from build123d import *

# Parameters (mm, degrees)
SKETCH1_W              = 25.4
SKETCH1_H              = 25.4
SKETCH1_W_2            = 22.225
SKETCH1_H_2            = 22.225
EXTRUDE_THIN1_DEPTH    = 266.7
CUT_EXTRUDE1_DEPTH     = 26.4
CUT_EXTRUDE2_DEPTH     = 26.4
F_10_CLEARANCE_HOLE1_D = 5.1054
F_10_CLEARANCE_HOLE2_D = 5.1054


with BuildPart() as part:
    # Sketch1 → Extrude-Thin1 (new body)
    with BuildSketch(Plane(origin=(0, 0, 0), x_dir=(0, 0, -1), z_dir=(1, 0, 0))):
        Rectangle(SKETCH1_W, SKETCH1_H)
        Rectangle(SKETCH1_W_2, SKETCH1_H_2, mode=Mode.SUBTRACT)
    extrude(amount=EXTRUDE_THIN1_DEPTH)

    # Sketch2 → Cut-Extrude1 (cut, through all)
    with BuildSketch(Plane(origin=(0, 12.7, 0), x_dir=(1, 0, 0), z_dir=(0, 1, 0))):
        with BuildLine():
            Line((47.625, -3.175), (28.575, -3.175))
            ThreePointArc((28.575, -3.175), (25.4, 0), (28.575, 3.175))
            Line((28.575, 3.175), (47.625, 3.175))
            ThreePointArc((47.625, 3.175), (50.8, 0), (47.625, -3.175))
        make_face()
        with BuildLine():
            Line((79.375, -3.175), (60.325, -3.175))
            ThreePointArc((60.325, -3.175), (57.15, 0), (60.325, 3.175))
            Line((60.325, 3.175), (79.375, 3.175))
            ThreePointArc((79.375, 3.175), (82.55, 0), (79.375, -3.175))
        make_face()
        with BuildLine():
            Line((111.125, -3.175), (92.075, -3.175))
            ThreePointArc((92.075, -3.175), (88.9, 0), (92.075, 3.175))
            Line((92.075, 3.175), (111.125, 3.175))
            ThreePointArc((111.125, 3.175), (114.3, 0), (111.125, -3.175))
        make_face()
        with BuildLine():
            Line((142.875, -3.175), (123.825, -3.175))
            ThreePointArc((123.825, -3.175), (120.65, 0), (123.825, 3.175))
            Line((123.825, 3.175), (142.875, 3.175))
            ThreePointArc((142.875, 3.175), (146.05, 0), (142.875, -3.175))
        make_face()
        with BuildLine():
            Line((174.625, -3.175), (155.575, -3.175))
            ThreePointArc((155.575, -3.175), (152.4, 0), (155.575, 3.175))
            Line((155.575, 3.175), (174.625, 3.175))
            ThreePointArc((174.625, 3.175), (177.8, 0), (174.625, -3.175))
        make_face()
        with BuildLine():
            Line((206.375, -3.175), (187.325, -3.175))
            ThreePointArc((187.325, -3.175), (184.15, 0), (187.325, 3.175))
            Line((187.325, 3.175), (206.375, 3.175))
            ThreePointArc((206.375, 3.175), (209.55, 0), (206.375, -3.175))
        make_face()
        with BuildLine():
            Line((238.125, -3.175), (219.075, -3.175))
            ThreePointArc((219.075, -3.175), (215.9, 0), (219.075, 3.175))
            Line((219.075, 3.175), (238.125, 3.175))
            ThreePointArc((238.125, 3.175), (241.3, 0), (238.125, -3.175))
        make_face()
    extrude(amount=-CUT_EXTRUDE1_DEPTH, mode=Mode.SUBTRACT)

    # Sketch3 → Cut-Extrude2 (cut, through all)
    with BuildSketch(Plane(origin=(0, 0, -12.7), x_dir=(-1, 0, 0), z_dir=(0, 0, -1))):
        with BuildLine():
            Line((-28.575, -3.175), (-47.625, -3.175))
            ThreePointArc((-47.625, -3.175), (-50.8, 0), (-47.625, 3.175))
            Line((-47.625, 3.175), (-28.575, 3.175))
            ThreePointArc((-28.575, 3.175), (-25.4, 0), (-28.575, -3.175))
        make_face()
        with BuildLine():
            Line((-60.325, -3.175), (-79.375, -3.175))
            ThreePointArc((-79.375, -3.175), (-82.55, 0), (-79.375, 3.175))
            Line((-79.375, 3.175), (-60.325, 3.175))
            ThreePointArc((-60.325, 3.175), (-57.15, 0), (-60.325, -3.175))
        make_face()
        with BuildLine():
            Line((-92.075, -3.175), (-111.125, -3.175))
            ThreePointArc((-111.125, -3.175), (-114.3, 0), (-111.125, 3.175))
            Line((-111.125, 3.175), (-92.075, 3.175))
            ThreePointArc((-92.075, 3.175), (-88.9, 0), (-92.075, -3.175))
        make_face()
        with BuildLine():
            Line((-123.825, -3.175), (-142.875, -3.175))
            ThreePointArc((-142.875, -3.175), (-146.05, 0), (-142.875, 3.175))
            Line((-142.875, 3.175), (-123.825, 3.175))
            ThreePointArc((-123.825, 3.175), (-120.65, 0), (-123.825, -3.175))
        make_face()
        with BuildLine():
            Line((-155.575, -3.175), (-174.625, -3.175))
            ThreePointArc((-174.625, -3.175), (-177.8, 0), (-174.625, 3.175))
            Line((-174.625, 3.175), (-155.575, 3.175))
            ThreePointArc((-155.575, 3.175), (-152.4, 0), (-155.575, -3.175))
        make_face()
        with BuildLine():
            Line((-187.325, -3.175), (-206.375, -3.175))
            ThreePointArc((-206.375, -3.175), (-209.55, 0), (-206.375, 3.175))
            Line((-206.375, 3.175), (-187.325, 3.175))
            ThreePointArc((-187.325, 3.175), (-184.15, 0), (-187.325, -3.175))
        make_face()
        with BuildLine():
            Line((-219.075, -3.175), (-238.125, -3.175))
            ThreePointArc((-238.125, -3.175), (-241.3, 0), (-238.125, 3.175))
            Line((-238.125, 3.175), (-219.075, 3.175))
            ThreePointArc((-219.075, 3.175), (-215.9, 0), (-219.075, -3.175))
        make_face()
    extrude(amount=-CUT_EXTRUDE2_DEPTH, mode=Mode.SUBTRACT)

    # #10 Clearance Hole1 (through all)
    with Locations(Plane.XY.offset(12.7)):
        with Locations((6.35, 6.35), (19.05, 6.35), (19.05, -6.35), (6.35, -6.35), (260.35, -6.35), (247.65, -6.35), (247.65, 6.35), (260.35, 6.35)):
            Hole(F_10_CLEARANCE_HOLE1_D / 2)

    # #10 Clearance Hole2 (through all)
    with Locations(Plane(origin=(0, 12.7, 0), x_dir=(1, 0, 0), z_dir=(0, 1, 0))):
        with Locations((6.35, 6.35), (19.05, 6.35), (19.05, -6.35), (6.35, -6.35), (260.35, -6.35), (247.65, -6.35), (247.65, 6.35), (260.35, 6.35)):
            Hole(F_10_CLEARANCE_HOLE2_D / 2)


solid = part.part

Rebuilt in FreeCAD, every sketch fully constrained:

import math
import FreeCAD as App
import Part
import Sketcher
from FreeCAD import Vector
Q = App.Units.Quantity

doc = App.newDocument("Part")
body = doc.addObject("PartDesign::Body", "Body")

sketch1 = body.newObject("Sketcher::SketchObject", "Sketch")
sketch1.AttachmentSupport = (doc.getObject("YZ_Plane"), [""])
sketch1.MapMode = "FlatFace"
sketch1.addGeometry([
    Part.LineSegment(Vector(12.7, 12.7, 0), Vector(-12.7, 12.7, 0)),
    Part.LineSegment(Vector(-12.7, 12.7, 0), Vector(-12.7, -12.7, 0)),
    Part.LineSegment(Vector(-12.7, -12.7, 0), Vector(12.7, -12.7, 0)),
    Part.LineSegment(Vector(12.7, -12.7, 0), Vector(12.7, 12.7, 0)),
    Part.LineSegment(Vector(-11.1125, -11.1125, 0), Vector(-11.1125, 11.1125, 0)),
    Part.LineSegment(Vector(-11.1125, 11.1125, 0), Vector(11.1125, 11.1125, 0)),
    Part.LineSegment(Vector(11.1125, 11.1125, 0), Vector(11.1125, -11.1125, 0)),
    Part.LineSegment(Vector(11.1125, -11.1125, 0), Vector(-11.1125, -11.1125, 0)),
], False)
sketch1.addConstraint([
    Sketcher.Constraint("Coincident", 0, 2, 1, 1),
    Sketcher.Constraint("Coincident", 1, 2, 2, 1),
    Sketcher.Constraint("Coincident", 2, 2, 3, 1),
    Sketcher.Constraint("Coincident", 3, 2, 0, 1),
    Sketcher.Constraint("Coincident", 4, 2, 5, 1),
    Sketcher.Constraint("Coincident", 5, 2, 6, 1),
    Sketcher.Constraint("Coincident", 6, 2, 7, 1),
    Sketcher.Constraint("Coincident", 7, 2, 4, 1),
    Sketcher.Constraint("Horizontal", 0),
    Sketcher.Constraint("Vertical", 1),
    Sketcher.Constraint("Horizontal", 2),
    Sketcher.Constraint("Vertical", 3),
    Sketcher.Constraint("Vertical", 4),
    Sketcher.Constraint("Horizontal", 5),
    Sketcher.Constraint("Vertical", 6),
    Sketcher.Constraint("Horizontal", 7),
    Sketcher.Constraint("Symmetric", 0, 2, 2, 2, -1, 1),
    Sketcher.Constraint("Symmetric", 4, 2, 6, 2, -1, 1),
    Sketcher.Constraint("Equal", 2, 1),
    Sketcher.Constraint("Equal", 7, 4),
    Sketcher.Constraint("DistanceX", 0, 2, 0, 1, Q("1 in")),
    Sketcher.Constraint("DistanceX", 5, 1, 5, 2, Q("0.875 in")),
])
pad1 = body.newObject("PartDesign::Pad", "Pad")
pad1.Profile = sketch1
pad1.Length = Q("10.5 in")

sketch2 = body.newObject("Sketcher::SketchObject", "Sketch001")
sketch2.AttachmentSupport = (doc.getObject("XZ_Plane"), [""])
sketch2.MapMode = "FlatFace"
sketch2.AttachmentOffset = App.Placement(Vector(0, 0, -0.5 * 25.4), App.Rotation())
sketch2.addGeometry([
    Part.LineSegment(Vector(28.575, 3.175, 0), Vector(47.625, 3.175, 0)),
    Part.ArcOfCircle(Part.Circle(Vector(47.625, 0, 0), Vector(0, 0, 1), 3.175), math.radians(-90), math.radians(90)),
    Part.LineSegment(Vector(47.625, -3.175, 0), Vector(28.575, -3.175, 0)),
    Part.ArcOfCircle(Part.Circle(Vector(28.575, 0, 0), Vector(0, 0, 1), 3.175), math.radians(90), math.radians(270)),
    Part.LineSegment(Vector(60.325, 3.175, 0), Vector(79.375, 3.175, 0)),
    Part.ArcOfCircle(Part.Circle(Vector(79.375, 0, 0), Vector(0, 0, 1), 3.175), math.radians(-90), math.radians(90)),
    Part.LineSegment(Vector(79.375, -3.175, 0), Vector(60.325, -3.175, 0)),
    Part.ArcOfCircle(Part.Circle(Vector(60.325, 0, 0), Vector(0, 0, 1), 3.175), math.radians(90), math.radians(270)),
    Part.LineSegment(Vector(92.075, 3.175, 0), Vector(111.125, 3.175, 0)),
    Part.ArcOfCircle(Part.Circle(Vector(111.125, 0, 0), Vector(0, 0, 1), 3.175), math.radians(-90), math.radians(90)),
    Part.LineSegment(Vector(111.125, -3.175, 0), Vector(92.075, -3.175, 0)),
    Part.ArcOfCircle(Part.Circle(Vector(92.075, 0, 0), Vector(0, 0, 1), 3.175), math.radians(90), math.radians(270)),
    Part.LineSegment(Vector(123.825, 3.175, 0), Vector(142.875, 3.175, 0)),
    Part.ArcOfCircle(Part.Circle(Vector(142.875, 0, 0), Vector(0, 0, 1), 3.175), math.radians(-90), math.radians(90)),
    Part.LineSegment(Vector(142.875, -3.175, 0), Vector(123.825, -3.175, 0)),
    Part.ArcOfCircle(Part.Circle(Vector(123.825, 0, 0), Vector(0, 0, 1), 3.175), math.radians(90), math.radians(270)),
    Part.LineSegment(Vector(155.575, 3.175, 0), Vector(174.625, 3.175, 0)),
    Part.ArcOfCircle(Part.Circle(Vector(174.625, 0, 0), Vector(0, 0, 1), 3.175), math.radians(-90), math.radians(90)),
    Part.LineSegment(Vector(174.625, -3.175, 0), Vector(155.575, -3.175, 0)),
    Part.ArcOfCircle(Part.Circle(Vector(155.575, 0, 0), Vector(0, 0, 1), 3.175), math.radians(90), math.radians(270)),
    Part.LineSegment(Vector(187.325, 3.175, 0), Vector(206.375, 3.175, 0)),
    Part.ArcOfCircle(Part.Circle(Vector(206.375, 0, 0), Vector(0, 0, 1), 3.175), math.radians(-90), math.radians(90)),
    Part.LineSegment(Vector(206.375, -3.175, 0), Vector(187.325, -3.175, 0)),
    Part.ArcOfCircle(Part.Circle(Vector(187.325, 0, 0), Vector(0, 0, 1), 3.175), math.radians(90), math.radians(270)),
    Part.LineSegment(Vector(219.075, 3.175, 0), Vector(238.125, 3.175, 0)),
    Part.ArcOfCircle(Part.Circle(Vector(238.125, 0, 0), Vector(0, 0, 1), 3.175), math.radians(-90), math.radians(90)),
    Part.LineSegment(Vector(238.125, -3.175, 0), Vector(219.075, -3.175, 0)),
    Part.ArcOfCircle(Part.Circle(Vector(219.075, 0, 0), Vector(0, 0, 1), 3.175), math.radians(90), math.radians(270)),
], False)
sketch2.addConstraint([
    Sketcher.Constraint("Tangent", 0, 2, 1, 2),
    Sketcher.Constraint("Tangent", 1, 1, 2, 1),
    Sketcher.Constraint("Tangent", 2, 2, 3, 2),
    Sketcher.Constraint("Tangent", 3, 1, 0, 1),
    Sketcher.Constraint("Tangent", 4, 2, 5, 2),
    Sketcher.Constraint("Tangent", 5, 1, 6, 1),
    Sketcher.Constraint("Tangent", 6, 2, 7, 2),
    Sketcher.Constraint("Tangent", 7, 1, 4, 1),
    Sketcher.Constraint("Tangent", 8, 2, 9, 2),
    Sketcher.Constraint("Tangent", 9, 1, 10, 1),
    Sketcher.Constraint("Tangent", 10, 2, 11, 2),
    Sketcher.Constraint("Tangent", 11, 1, 8, 1),
    Sketcher.Constraint("Tangent", 12, 2, 13, 2),
    Sketcher.Constraint("Tangent", 13, 1, 14, 1),
    Sketcher.Constraint("Tangent", 14, 2, 15, 2),
    Sketcher.Constraint("Tangent", 15, 1, 12, 1),
    Sketcher.Constraint("Tangent", 16, 2, 17, 2),
    Sketcher.Constraint("Tangent", 17, 1, 18, 1),
    Sketcher.Constraint("Tangent", 18, 2, 19, 2),
    Sketcher.Constraint("Tangent", 19, 1, 16, 1),
    Sketcher.Constraint("Tangent", 20, 2, 21, 2),
    Sketcher.Constraint("Tangent", 21, 1, 22, 1),
    Sketcher.Constraint("Tangent", 22, 2, 23, 2),
    Sketcher.Constraint("Tangent", 23, 1, 20, 1),
    Sketcher.Constraint("Tangent", 24, 2, 25, 2),
    Sketcher.Constraint("Tangent", 25, 1, 26, 1),
    Sketcher.Constraint("Tangent", 26, 2, 27, 2),
    Sketcher.Constraint("Tangent", 27, 1, 24, 1),
    Sketcher.Constraint("Horizontal", 0),
    Sketcher.Constraint("Horizontal", 2),
    Sketcher.Constraint("Horizontal", 4),
    Sketcher.Constraint("Horizontal", 6),
    Sketcher.Constraint("Horizontal", 8),
    Sketcher.Constraint("Horizontal", 10),
    Sketcher.Constraint("Horizontal", 12),
    Sketcher.Constraint("Horizontal", 14),
    Sketcher.Constraint("Horizontal", 16),
    Sketcher.Constraint("Horizontal", 18),
    Sketcher.Constraint("Horizontal", 20),
    Sketcher.Constraint("Horizontal", 22),
    Sketcher.Constraint("Horizontal", 24),
    Sketcher.Constraint("Horizontal", 26),
    Sketcher.Constraint("Equal", 3, 5),
    Sketcher.Constraint("Equal", 7, 9),
    Sketcher.Constraint("Equal", 11, 13),
    Sketcher.Constraint("Equal", 15, 17),
    Sketcher.Constraint("Equal", 19, 21),
    Sketcher.Constraint("Equal", 23, 25),
    Sketcher.Constraint("PointOnObject", 1, 3, -1),
    Sketcher.Constraint("PointOnObject", 5, 3, -1),
    Sketcher.Constraint("PointOnObject", 9, 3, -1),
    Sketcher.Constraint("PointOnObject", 13, 3, -1),
    Sketcher.Constraint("PointOnObject", 17, 3, -1),
    Sketcher.Constraint("PointOnObject", 21, 3, -1),
    Sketcher.Constraint("PointOnObject", 25, 3, -1),
    Sketcher.Constraint("Equal", 2, 4),
    Sketcher.Constraint("Equal", 6, 8),
    Sketcher.Constraint("Equal", 10, 12),
    Sketcher.Constraint("Equal", 14, 16),
    Sketcher.Constraint("Equal", 18, 20),
    Sketcher.Constraint("Equal", 22, 24),
    Sketcher.Constraint("Radius", 1, Q("0.125 in")),
    Sketcher.Constraint("DistanceX", 3, 3, 5, 3, Q("2 in")),
    Sketcher.Constraint("DistanceX", 7, 3, 9, 3, Q("2 in")),
    Sketcher.Constraint("DistanceX", 11, 3, 13, 3, Q("2 in")),
    Sketcher.Constraint("DistanceX", 15, 3, 17, 3, Q("2 in")),
    Sketcher.Constraint("DistanceX", 19, 3, 21, 3, Q("2 in")),
    Sketcher.Constraint("DistanceX", 23, 3, 25, 3, Q("2 in")),
    Sketcher.Constraint("DistanceX", 0, 1, 0, 2, Q("0.75 in")),
    Sketcher.Constraint("DistanceX", -1, 1, 1, 3, Q("1.875 in")),
])
pocket1 = body.newObject("PartDesign::Pocket", "Pocket")
pocket1.Profile = sketch2
pocket1.Type = "ThroughAll"
pocket1.Reversed = True

sketch3 = body.newObject("Sketcher::SketchObject", "Sketch002")
sketch3.AttachmentSupport = (doc.getObject("XY_Plane"), [""])
sketch3.MapMode = "FlatFace"
sketch3.AttachmentOffset = App.Placement(Vector(0, 0, -0.5 * 25.4), App.Rotation())
sketch3.addGeometry([
    Part.LineSegment(Vector(47.625, -3.175, 0), Vector(28.575, -3.175, 0)),
    Part.ArcOfCircle(Part.Circle(Vector(28.575, 0, 0), Vector(0, 0, 1), 3.175), math.radians(90), math.radians(270)),
    Part.LineSegment(Vector(28.575, 3.175, 0), Vector(47.625, 3.175, 0)),
    Part.ArcOfCircle(Part.Circle(Vector(47.625, 0, 0), Vector(0, 0, 1), 3.175), math.radians(-90), math.radians(90)),
    Part.LineSegment(Vector(79.375, -3.175, 0), Vector(60.325, -3.175, 0)),
    Part.ArcOfCircle(Part.Circle(Vector(60.325, 0, 0), Vector(0, 0, 1), 3.175), math.radians(90), math.radians(270)),
    Part.LineSegment(Vector(60.325, 3.175, 0), Vector(79.375, 3.175, 0)),
    Part.ArcOfCircle(Part.Circle(Vector(79.375, 0, 0), Vector(0, 0, 1), 3.175), math.radians(-90), math.radians(90)),
    Part.LineSegment(Vector(111.125, -3.175, 0), Vector(92.075, -3.175, 0)),
    Part.ArcOfCircle(Part.Circle(Vector(92.075, 0, 0), Vector(0, 0, 1), 3.175), math.radians(90), math.radians(270)),
    Part.LineSegment(Vector(92.075, 3.175, 0), Vector(111.125, 3.175, 0)),
    Part.ArcOfCircle(Part.Circle(Vector(111.125, 0, 0), Vector(0, 0, 1), 3.175), math.radians(-90), math.radians(90)),
    Part.LineSegment(Vector(142.875, -3.175, 0), Vector(123.825, -3.175, 0)),
    Part.ArcOfCircle(Part.Circle(Vector(123.825, 0, 0), Vector(0, 0, 1), 3.175), math.radians(90), math.radians(270)),
    Part.LineSegment(Vector(123.825, 3.175, 0), Vector(142.875, 3.175, 0)),
    Part.ArcOfCircle(Part.Circle(Vector(142.875, 0, 0), Vector(0, 0, 1), 3.175), math.radians(-90), math.radians(90)),
    Part.LineSegment(Vector(174.625, -3.175, 0), Vector(155.575, -3.175, 0)),
    Part.ArcOfCircle(Part.Circle(Vector(155.575, 0, 0), Vector(0, 0, 1), 3.175), math.radians(90), math.radians(270)),
    Part.LineSegment(Vector(155.575, 3.175, 0), Vector(174.625, 3.175, 0)),
    Part.ArcOfCircle(Part.Circle(Vector(174.625, 0, 0), Vector(0, 0, 1), 3.175), math.radians(-90), math.radians(90)),
    Part.LineSegment(Vector(206.375, -3.175, 0), Vector(187.325, -3.175, 0)),
    Part.ArcOfCircle(Part.Circle(Vector(187.325, 0, 0), Vector(0, 0, 1), 3.175), math.radians(90), math.radians(270)),
    Part.LineSegment(Vector(187.325, 3.175, 0), Vector(206.375, 3.175, 0)),
    Part.ArcOfCircle(Part.Circle(Vector(206.375, 0, 0), Vector(0, 0, 1), 3.175), math.radians(-90), math.radians(90)),
    Part.LineSegment(Vector(238.125, -3.175, 0), Vector(219.075, -3.175, 0)),
    Part.ArcOfCircle(Part.Circle(Vector(219.075, 0, 0), Vector(0, 0, 1), 3.175), math.radians(90), math.radians(270)),
    Part.LineSegment(Vector(219.075, 3.175, 0), Vector(238.125, 3.175, 0)),
    Part.ArcOfCircle(Part.Circle(Vector(238.125, 0, 0), Vector(0, 0, 1), 3.175), math.radians(-90), math.radians(90)),
], False)
sketch3.addConstraint([
    Sketcher.Constraint("Tangent", 0, 2, 1, 2),
    Sketcher.Constraint("Tangent", 1, 1, 2, 1),
    Sketcher.Constraint("Tangent", 2, 2, 3, 2),
    Sketcher.Constraint("Tangent", 3, 1, 0, 1),
    Sketcher.Constraint("Tangent", 4, 2, 5, 2),
    Sketcher.Constraint("Tangent", 5, 1, 6, 1),
    Sketcher.Constraint("Tangent", 6, 2, 7, 2),
    Sketcher.Constraint("Tangent", 7, 1, 4, 1),
    Sketcher.Constraint("Tangent", 8, 2, 9, 2),
    Sketcher.Constraint("Tangent", 9, 1, 10, 1),
    Sketcher.Constraint("Tangent", 10, 2, 11, 2),
    Sketcher.Constraint("Tangent", 11, 1, 8, 1),
    Sketcher.Constraint("Tangent", 12, 2, 13, 2),
    Sketcher.Constraint("Tangent", 13, 1, 14, 1),
    Sketcher.Constraint("Tangent", 14, 2, 15, 2),
    Sketcher.Constraint("Tangent", 15, 1, 12, 1),
    Sketcher.Constraint("Tangent", 16, 2, 17, 2),
    Sketcher.Constraint("Tangent", 17, 1, 18, 1),
    Sketcher.Constraint("Tangent", 18, 2, 19, 2),
    Sketcher.Constraint("Tangent", 19, 1, 16, 1),
    Sketcher.Constraint("Tangent", 20, 2, 21, 2),
    Sketcher.Constraint("Tangent", 21, 1, 22, 1),
    Sketcher.Constraint("Tangent", 22, 2, 23, 2),
    Sketcher.Constraint("Tangent", 23, 1, 20, 1),
    Sketcher.Constraint("Tangent", 24, 2, 25, 2),
    Sketcher.Constraint("Tangent", 25, 1, 26, 1),
    Sketcher.Constraint("Tangent", 26, 2, 27, 2),
    Sketcher.Constraint("Tangent", 27, 1, 24, 1),
    Sketcher.Constraint("Horizontal", 0),
    Sketcher.Constraint("Horizontal", 2),
    Sketcher.Constraint("Horizontal", 4),
    Sketcher.Constraint("Horizontal", 6),
    Sketcher.Constraint("Horizontal", 8),
    Sketcher.Constraint("Horizontal", 10),
    Sketcher.Constraint("Horizontal", 12),
    Sketcher.Constraint("Horizontal", 14),
    Sketcher.Constraint("Horizontal", 16),
    Sketcher.Constraint("Horizontal", 18),
    Sketcher.Constraint("Horizontal", 20),
    Sketcher.Constraint("Horizontal", 22),
    Sketcher.Constraint("Horizontal", 24),
    Sketcher.Constraint("Horizontal", 26),
    Sketcher.Constraint("Equal", 3, 5),
    Sketcher.Constraint("Equal", 7, 9),
    Sketcher.Constraint("Equal", 11, 13),
    Sketcher.Constraint("Equal", 15, 17),
    Sketcher.Constraint("Equal", 19, 21),
    Sketcher.Constraint("Equal", 23, 25),
    Sketcher.Constraint("PointOnObject", 1, 3, -1),
    Sketcher.Constraint("PointOnObject", 5, 3, -1),
    Sketcher.Constraint("PointOnObject", 9, 3, -1),
    Sketcher.Constraint("PointOnObject", 13, 3, -1),
    Sketcher.Constraint("PointOnObject", 17, 3, -1),
    Sketcher.Constraint("PointOnObject", 21, 3, -1),
    Sketcher.Constraint("PointOnObject", 25, 3, -1),
    Sketcher.Constraint("Equal", 2, 4),
    Sketcher.Constraint("Equal", 6, 8),
    Sketcher.Constraint("Equal", 10, 12),
    Sketcher.Constraint("Equal", 14, 16),
    Sketcher.Constraint("Equal", 18, 20),
    Sketcher.Constraint("Equal", 22, 24),
    Sketcher.Constraint("Radius", 1, Q("0.125 in")),
    Sketcher.Constraint("DistanceX", 1, 3, 7, 3, Q("2 in")),
    Sketcher.Constraint("DistanceX", 5, 3, 11, 3, Q("2 in")),
    Sketcher.Constraint("DistanceX", 3, 3, 13, 3, Q("3 in")),
    Sketcher.Constraint("DistanceX", 9, 3, 15, 3, Q("2 in")),
    Sketcher.Constraint("DistanceX", 7, 3, 17, 3, Q("3 in")),
    Sketcher.Constraint("DistanceX", 11, 3, 21, 3, Q("3 in")),
    Sketcher.Constraint("DistanceX", 15, 3, 25, 3, Q("3 in")),
    Sketcher.Constraint("DistanceX", -1, 1, 1, 3, Q("1.125 in")),
])
pocket2 = body.newObject("PartDesign::Pocket", "Pocket001")
pocket2.Profile = sketch3
pocket2.Type = "ThroughAll"
pocket2.Reversed = True

sketch4 = body.newObject("Sketcher::SketchObject", "Sketch003")
sketch4.AttachmentSupport = (doc.getObject("XY_Plane"), [""])
sketch4.MapMode = "FlatFace"
sketch4.AttachmentOffset = App.Placement(Vector(0, 0, 0.5 * 25.4), App.Rotation())
sketch4.addGeometry([
    Part.Circle(Vector(6.35, 6.35, 0), Vector(0, 0, 1), 2.5527),
    Part.Circle(Vector(19.05, 6.35, 0), Vector(0, 0, 1), 2.5527),
    Part.Circle(Vector(19.05, -6.35, 0), Vector(0, 0, 1), 2.5527),
    Part.Circle(Vector(6.35, -6.35, 0), Vector(0, 0, 1), 2.5527),
    Part.Circle(Vector(260.35, -6.35, 0), Vector(0, 0, 1), 2.5527),
    Part.Circle(Vector(247.65, -6.35, 0), Vector(0, 0, 1), 2.5527),
    Part.Circle(Vector(247.65, 6.35, 0), Vector(0, 0, 1), 2.5527),
    Part.Circle(Vector(260.35, 6.35, 0), Vector(0, 0, 1), 2.5527),
], False)
sketch4.addConstraint([
    Sketcher.Constraint("Equal", 0, 1),
    Sketcher.Constraint("Equal", 1, 2),
    Sketcher.Constraint("Equal", 2, 3),
    Sketcher.Constraint("Equal", 3, 4),
    Sketcher.Constraint("Equal", 4, 5),
    Sketcher.Constraint("Equal", 5, 6),
    Sketcher.Constraint("Equal", 6, 7),
    Sketcher.Constraint("Symmetric", 1, 3, 2, 3, -1),
    Sketcher.Constraint("Symmetric", 0, 3, 3, 3, -1),
    Sketcher.Constraint("Symmetric", 5, 3, 6, 3, -1),
    Sketcher.Constraint("Symmetric", 4, 3, 7, 3, -1),
    Sketcher.Constraint("Horizontal", 0, 3, 1, 3),
    Sketcher.Constraint("Horizontal", 3, 3, 4, 3),
    Sketcher.Constraint("Horizontal", 4, 3, 5, 3),
    Sketcher.Constraint("Diameter", 0, Q("0.201 in")),
    Sketcher.Constraint("DistanceX", 3, 3, 4, 3, Q("10 in")),
    Sketcher.Constraint("DistanceX", 2, 3, 5, 3, Q("9 in")),
    Sketcher.Constraint("DistanceX", 0, 3, 1, 3, Q("0.5 in")),
    Sketcher.Constraint("DistanceY", 2, 3, 1, 3, Q("0.5 in")),
    Sketcher.Constraint("DistanceX", -1, 1, 0, 3, Q("0.25 in")),
])
doc.recompute()
hole = body.newObject("PartDesign::Hole", "Hole")
hole.Profile = sketch4
hole.ThreadType = "None"
hole.Diameter = Q("0.201 in")
hole.DepthType = "ThroughAll"

sketch5 = body.newObject("Sketcher::SketchObject", "Sketch004")
sketch5.AttachmentSupport = (doc.getObject("XZ_Plane"), [""])
sketch5.MapMode = "FlatFace"
sketch5.AttachmentOffset = App.Placement(Vector(0, 0, -0.5 * 25.4), App.Rotation())
sketch5.addGeometry([
    Part.Circle(Vector(6.35, -6.35, 0), Vector(0, 0, 1), 2.5527),
    Part.Circle(Vector(19.05, -6.35, 0), Vector(0, 0, 1), 2.5527),
    Part.Circle(Vector(19.05, 6.35, 0), Vector(0, 0, 1), 2.5527),
    Part.Circle(Vector(6.35, 6.35, 0), Vector(0, 0, 1), 2.5527),
    Part.Circle(Vector(260.35, 6.35, 0), Vector(0, 0, 1), 2.5527),
    Part.Circle(Vector(247.65, 6.35, 0), Vector(0, 0, 1), 2.5527),
    Part.Circle(Vector(247.65, -6.35, 0), Vector(0, 0, 1), 2.5527),
    Part.Circle(Vector(260.35, -6.35, 0), Vector(0, 0, 1), 2.5527),
], False)
sketch5.addConstraint([
    Sketcher.Constraint("Equal", 0, 1),
    Sketcher.Constraint("Equal", 1, 2),
    Sketcher.Constraint("Equal", 2, 3),
    Sketcher.Constraint("Equal", 3, 4),
    Sketcher.Constraint("Equal", 4, 5),
    Sketcher.Constraint("Equal", 5, 6),
    Sketcher.Constraint("Equal", 6, 7),
    Sketcher.Constraint("Symmetric", 1, 3, 2, 3, -1),
    Sketcher.Constraint("Symmetric", 0, 3, 3, 3, -1),
    Sketcher.Constraint("Symmetric", 5, 3, 6, 3, -1),
    Sketcher.Constraint("Symmetric", 4, 3, 7, 3, -1),
    Sketcher.Constraint("Horizontal", 0, 3, 1, 3),
    Sketcher.Constraint("Horizontal", 3, 3, 4, 3),
    Sketcher.Constraint("Horizontal", 4, 3, 5, 3),
    Sketcher.Constraint("Diameter", 0, Q("0.201 in")),
    Sketcher.Constraint("DistanceX", 3, 3, 4, 3, Q("10 in")),
    Sketcher.Constraint("DistanceX", 2, 3, 5, 3, Q("9 in")),
    Sketcher.Constraint("DistanceX", 0, 3, 1, 3, Q("0.5 in")),
    Sketcher.Constraint("DistanceY", 1, 3, 2, 3, Q("0.5 in")),
    Sketcher.Constraint("DistanceX", -1, 1, 0, 3, Q("0.25 in")),
])
doc.recompute()
hole2 = body.newObject("PartDesign::Hole", "Hole001")
hole2.Profile = sketch5
hole2.ThreadType = "None"
hole2.Diameter = Q("0.201 in")
hole2.DepthType = "ThroughAll"
hole2.Reversed = True

doc.recompute()
